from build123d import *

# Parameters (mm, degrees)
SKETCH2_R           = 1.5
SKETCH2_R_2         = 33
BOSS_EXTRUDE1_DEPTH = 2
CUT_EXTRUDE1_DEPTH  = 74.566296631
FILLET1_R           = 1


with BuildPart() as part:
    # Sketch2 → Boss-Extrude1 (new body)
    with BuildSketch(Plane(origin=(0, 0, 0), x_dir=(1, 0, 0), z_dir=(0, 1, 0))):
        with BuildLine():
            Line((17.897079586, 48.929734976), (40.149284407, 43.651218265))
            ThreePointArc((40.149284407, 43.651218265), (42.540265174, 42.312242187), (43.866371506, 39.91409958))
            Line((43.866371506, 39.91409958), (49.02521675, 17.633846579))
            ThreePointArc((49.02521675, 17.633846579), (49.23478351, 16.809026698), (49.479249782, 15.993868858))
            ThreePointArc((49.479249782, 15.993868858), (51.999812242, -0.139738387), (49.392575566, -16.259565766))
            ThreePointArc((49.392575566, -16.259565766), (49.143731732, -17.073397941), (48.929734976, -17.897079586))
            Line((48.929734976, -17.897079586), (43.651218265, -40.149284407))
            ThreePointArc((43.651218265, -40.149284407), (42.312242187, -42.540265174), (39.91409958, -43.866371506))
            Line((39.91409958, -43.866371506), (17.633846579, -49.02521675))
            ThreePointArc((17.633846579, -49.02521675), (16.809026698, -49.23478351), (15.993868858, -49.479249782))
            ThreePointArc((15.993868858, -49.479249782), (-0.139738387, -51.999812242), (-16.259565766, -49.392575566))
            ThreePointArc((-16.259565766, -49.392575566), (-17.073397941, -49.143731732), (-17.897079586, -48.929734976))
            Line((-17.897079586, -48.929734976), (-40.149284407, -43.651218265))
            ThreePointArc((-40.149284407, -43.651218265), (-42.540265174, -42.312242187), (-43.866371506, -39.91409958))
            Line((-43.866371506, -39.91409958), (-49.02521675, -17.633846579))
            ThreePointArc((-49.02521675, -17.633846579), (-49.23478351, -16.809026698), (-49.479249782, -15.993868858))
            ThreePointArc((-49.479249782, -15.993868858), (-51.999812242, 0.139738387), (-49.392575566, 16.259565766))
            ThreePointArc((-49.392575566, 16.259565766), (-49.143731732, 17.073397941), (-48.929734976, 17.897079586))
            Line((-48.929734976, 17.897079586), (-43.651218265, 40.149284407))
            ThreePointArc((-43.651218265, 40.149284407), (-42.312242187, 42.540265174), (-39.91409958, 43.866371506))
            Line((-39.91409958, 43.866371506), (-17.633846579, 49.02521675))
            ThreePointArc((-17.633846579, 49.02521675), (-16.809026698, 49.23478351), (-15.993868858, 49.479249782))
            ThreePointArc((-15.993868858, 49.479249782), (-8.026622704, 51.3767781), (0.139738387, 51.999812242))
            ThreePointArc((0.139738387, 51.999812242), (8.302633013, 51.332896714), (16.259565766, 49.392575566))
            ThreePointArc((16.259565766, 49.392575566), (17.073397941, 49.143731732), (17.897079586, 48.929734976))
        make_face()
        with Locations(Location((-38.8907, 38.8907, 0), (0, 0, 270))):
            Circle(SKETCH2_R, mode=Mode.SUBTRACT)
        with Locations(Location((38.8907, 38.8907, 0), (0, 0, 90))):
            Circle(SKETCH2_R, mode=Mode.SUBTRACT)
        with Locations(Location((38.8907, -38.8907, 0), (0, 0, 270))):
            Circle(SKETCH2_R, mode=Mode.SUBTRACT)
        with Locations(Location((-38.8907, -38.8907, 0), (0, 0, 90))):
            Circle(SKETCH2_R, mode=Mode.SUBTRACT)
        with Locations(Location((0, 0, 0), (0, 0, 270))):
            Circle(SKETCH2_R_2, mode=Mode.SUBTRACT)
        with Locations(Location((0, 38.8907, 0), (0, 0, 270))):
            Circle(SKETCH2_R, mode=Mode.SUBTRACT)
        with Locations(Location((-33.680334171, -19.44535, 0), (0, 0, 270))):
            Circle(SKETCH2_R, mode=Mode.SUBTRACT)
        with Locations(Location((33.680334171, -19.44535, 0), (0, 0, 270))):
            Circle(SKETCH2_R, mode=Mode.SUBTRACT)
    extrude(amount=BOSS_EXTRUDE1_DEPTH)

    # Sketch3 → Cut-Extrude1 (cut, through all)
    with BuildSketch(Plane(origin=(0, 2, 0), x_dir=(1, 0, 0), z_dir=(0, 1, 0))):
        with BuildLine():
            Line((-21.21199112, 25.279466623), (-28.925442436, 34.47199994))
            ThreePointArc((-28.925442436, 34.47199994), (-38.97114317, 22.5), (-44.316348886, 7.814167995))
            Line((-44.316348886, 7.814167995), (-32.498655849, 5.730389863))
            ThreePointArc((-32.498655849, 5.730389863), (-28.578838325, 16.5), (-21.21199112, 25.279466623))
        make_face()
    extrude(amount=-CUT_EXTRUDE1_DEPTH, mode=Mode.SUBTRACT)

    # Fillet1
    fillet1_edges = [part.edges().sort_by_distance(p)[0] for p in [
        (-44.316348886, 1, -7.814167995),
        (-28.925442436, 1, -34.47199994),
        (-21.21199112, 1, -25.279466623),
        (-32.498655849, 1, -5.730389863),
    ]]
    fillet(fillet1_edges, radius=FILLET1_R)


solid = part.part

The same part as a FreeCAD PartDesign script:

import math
import FreeCAD as App
import Part
import Sketcher

V = App.Vector
Q = App.Units.Quantity


def edges_at(feature, points):
    """Names of the edges that pass closest to the given points."""
    edges = feature.Shape.Edges
    near = lambda p: min(range(len(edges)), key=lambda i: edges[i].distToShape(Part.Vertex(*p))[0])
    return sorted({f"Edge{near(p) + 1}" for p in points})

doc = App.newDocument("Part")
body = doc.addObject("PartDesign::Body", "Body")

# Sketch on XZ plane
sketch1 = body.newObject("Sketcher::SketchObject", "Sketch")
sketch1.AttachmentSupport = (doc.getObject("XZ_Plane"), [""])
sketch1.MapMode = "FlatFace"
sketch1.addGeometry(Part.LineSegment(V(40.149284, -43.651218, 0), V(17.89708, -48.929735, 0)), False)
sketch1.addGeometry(Part.ArcOfCircle(Part.Circle(V(22.513245, -68.38972, 0), V(0, 0, 1), 20), math.radians(103.344662), math.radians(108.221053)), False)
sketch1.addGeometry(Part.ArcOfCircle(Part.Circle(V(0, 0, 0), V(0, 0, 1), 52), math.radians(-89.84603), math.radians(-71.778947)), False)
sketch1.addGeometry(Part.ArcOfCircle(Part.Circle(V(0, 0, 0), V(0, 0, 1), 52), math.radians(-107.913113), math.radians(-89.84603)), False)
sketch1.addGeometry(Part.ArcOfCircle(Part.Circle(V(-22.145357, -68.50973, 0), V(0, 0, 1), 19.999999), math.radians(72.086887), math.radians(76.963277)), False)
sketch1.addGeometry(Part.LineSegment(V(-17.633847, -49.025217, 0), V(-39.9141, -43.866372, 0)), False)
sketch1.addGeometry(Part.ArcOfCircle(Part.Circle(V(-38.786222, -38.995243, 0), V(0, 0, 1), 5), math.radians(-166.655338), math.radians(-103.036723)), False)
sketch1.addGeometry(Part.LineSegment(V(-43.651218, -40.149284, 0), V(-48.929735, -17.89708, 0)), False)
sketch1.addGeometry(Part.ArcOfCircle(Part.Circle(V(-68.38972, -22.513245, 0), V(0, 0, 1), 20), math.radians(13.344662), math.radians(18.221053)), False)
sketch1.addGeometry(Part.ArcOfCircle(Part.Circle(V(0, 0, 0), V(0, 0, 1), 52), math.radians(162.086887), math.radians(198.221053)), False)
sketch1.addGeometry(Part.ArcOfCircle(Part.Circle(V(-68.50973, 22.145357, 0), V(0, 0, 1), 19.999999), math.radians(-17.913113), math.radians(-13.036723)), False)
sketch1.addGeometry(Part.LineSegment(V(-49.025217, 17.633847, 0), V(-43.866372, 39.9141, 0)), False)
sketch1.addGeometry(Part.ArcOfCircle(Part.Circle(V(-38.995243, 38.786222, 0), V(0, 0, 1), 5), math.radians(103.344662), math.radians(166.963277)), False)
sketch1.addGeometry(Part.LineSegment(V(-40.149284, 43.651218, 0), V(-17.89708, 48.929735, 0)), False)
sketch1.addGeometry(Part.ArcOfCircle(Part.Circle(V(-22.513245, 68.38972, 0), V(0, 0, 1), 20), math.radians(-76.655338), math.radians(-71.778947)), False)
sketch1.addGeometry(Part.ArcOfCircle(Part.Circle(V(0, 0, 0), V(0, 0, 1), 52), math.radians(72.086887), math.radians(108.221053)), False)
sketch1.addGeometry(Part.ArcOfCircle(Part.Circle(V(22.145357, 68.50973, 0), V(0, 0, 1), 19.999999), math.radians(-107.913113), math.radians(-103.036723)), False)
sketch1.addGeometry(Part.LineSegment(V(17.633847, 49.025217, 0), V(39.9141, 43.866372, 0)), False)
sketch1.addGeometry(Part.ArcOfCircle(Part.Circle(V(38.786222, 38.995243, 0), V(0, 0, 1), 5), math.radians(13.344662), math.radians(76.963277)), False)
sketch1.addGeometry(Part.LineSegment(V(43.651218, 40.149284, 0), V(48.929735, 17.89708, 0)), False)
sketch1.addGeometry(Part.ArcOfCircle(Part.Circle(V(68.38972, 22.513245, 0), V(0, 0, 1), 20), math.radians(-166.655338), math.radians(-161.778947)), False)
sketch1.addGeometry(Part.ArcOfCircle(Part.Circle(V(0, 0, 0), V(0, 0, 1), 52), math.radians(-17.913113), math.radians(18.221053)), False)
sketch1.addGeometry(Part.ArcOfCircle(Part.Circle(V(68.50973, -22.145357, 0), V(0, 0, 1), 19.999999), math.radians(162.086887), math.radians(166.963277)), False)
sketch1.addGeometry(Part.LineSegment(V(49.025217, -17.633847, 0), V(43.866372, -39.9141, 0)), False)
sketch1.addGeometry(Part.ArcOfCircle(Part.Circle(V(38.995243, -38.786222, 0), V(0, 0, 1), 5), math.radians(-76.655338), math.radians(-13.036723)), False)
sketch1.addGeometry(Part.Circle(V(38.8907, 38.8907, 0), V(0, 0, 1), 1.5), False)
sketch1.addGeometry(Part.Circle(V(33.680334, 19.44535, 0), V(0, 0, 1), 1.5), False)
sketch1.addGeometry(Part.Circle(V(-38.8907, 38.8907, 0), V(0, 0, 1), 1.5), False)
sketch1.addGeometry(Part.Circle(V(-33.680334, 19.44535, 0), V(0, 0, 1), 1.5), False)
sketch1.addGeometry(Part.Circle(V(38.8907, -38.8907, 0), V(0, 0, 1), 1.5), False)
sketch1.addGeometry(Part.Circle(V(0, 0, 0), V(0, 0, 1), 33), False)
sketch1.addGeometry(Part.Circle(V(0, -38.8907, 0), V(0, 0, 1), 1.5), False)
sketch1.addGeometry(Part.Circle(V(-38.8907, -38.8907, 0), V(0, 0, 1), 1.5), False)
sketch1.addConstraint(Sketcher.Constraint("Tangent", 0, 2, 1, 1))
sketch1.addConstraint(Sketcher.Constraint("Tangent", 1, 2, 2, 2))
sketch1.addConstraint(Sketcher.Constraint("Tangent", 2, 1, 3, 2))
sketch1.addConstraint(Sketcher.Constraint("Tangent", 3, 1, 4, 1))
sketch1.addConstraint(Sketcher.Constraint("Tangent", 4, 2, 5, 1))
sketch1.addConstraint(Sketcher.Constraint("Tangent", 5, 2, 6, 2))
sketch1.addConstraint(Sketcher.Constraint("Tangent", 6, 1, 7, 1))
sketch1.addConstraint(Sketcher.Constraint("Tangent", 7, 2, 8, 1))
sketch1.addConstraint(Sketcher.Constraint("Tangent", 8, 2, 9, 2))
sketch1.addConstraint(Sketcher.Constraint("Tangent", 9, 1, 10, 1))
sketch1.addConstraint(Sketcher.Constraint("Tangent", 10, 2, 11, 1))
sketch1.addConstraint(Sketcher.Constraint("Tangent", 11, 2, 12, 2))
sketch1.addConstraint(Sketcher.Constraint("Tangent", 12, 1, 13, 1))
sketch1.addConstraint(Sketcher.Constraint("Tangent", 13, 2, 14, 1))
sketch1.addConstraint(Sketcher.Constraint("Tangent", 14, 2, 15, 2))
sketch1.addConstraint(Sketcher.Constraint("Tangent", 15, 1, 16, 1))
sketch1.addConstraint(Sketcher.Constraint("Tangent", 16, 2, 17, 1))
sketch1.addConstraint(Sketcher.Constraint("Tangent", 17, 2, 18, 2))
sketch1.addConstraint(Sketcher.Constraint("Tangent", 18, 1, 19, 1))
sketch1.addConstraint(Sketcher.Constraint("Tangent", 19, 2, 20, 1))
sketch1.addConstraint(Sketcher.Constraint("Tangent", 20, 2, 21, 2))
sketch1.addConstraint(Sketcher.Constraint("Tangent", 21, 1, 22, 1))
sketch1.addConstraint(Sketcher.Constraint("Tangent", 22, 2, 23, 1))
sketch1.addConstraint(Sketcher.Constraint("Tangent", 23, 2, 24, 2))
sketch1.addConstraint(Sketcher.Constraint("Tangent", 24, 1, 0, 1))
sketch1.addConstraint(Sketcher.Constraint("Coincident", 2, 3, -1, 1))
sketch1.addConstraint(Sketcher.Constraint("Coincident", 9, 3, -1, 1))
sketch1.addConstraint(Sketcher.Constraint("Coincident", 15, 3, -1, 1))
sketch1.addConstraint(Sketcher.Constraint("Coincident", 21, 3, -1, 1))
sketch1.addConstraint(Sketcher.Constraint("Coincident", 30, 3, -1, 1))
sketch1.addConstraint(Sketcher.Constraint("Equal", 2, 3))
sketch1.addConstraint(Sketcher.Constraint("Equal", 1, 4))
sketch1.addConstraint(Sketcher.Constraint("Equal", 4, 8))
sketch1.addConstraint(Sketcher.Constraint("Equal", 3, 9))
sketch1.addConstraint(Sketcher.Constraint("Equal", 8, 10))
sketch1.addConstraint(Sketcher.Constraint("Equal", 6, 12))
sketch1.addConstraint(Sketcher.Constraint("Equal", 10, 14))
sketch1.addConstraint(Sketcher.Constraint("Equal", 9, 15))
sketch1.addConstraint(Sketcher.Constraint("Equal", 14, 16))
sketch1.addConstraint(Sketcher.Constraint("Equal", 12, 18))
sketch1.addConstraint(Sketcher.Constraint("Equal", 16, 20))
sketch1.addConstraint(Sketcher.Constraint("Equal", 15, 21))
sketch1.addConstraint(Sketcher.Constraint("Equal", 20, 22))
sketch1.addConstraint(Sketcher.Constraint("Equal", 18, 24))
sketch1.addConstraint(Sketcher.Constraint("Equal", 25, 26))
sketch1.addConstraint(Sketcher.Constraint("Equal", 26, 27))
sketch1.addConstraint(Sketcher.Constraint("Equal", 27, 28))
sketch1.addConstraint(Sketcher.Constraint("Equal", 28, 29))
sketch1.addConstraint(Sketcher.Constraint("Equal", 29, 31))
sketch1.addConstraint(Sketcher.Constraint("Equal", 31, 32))
sketch1.addConstraint(Sketcher.Constraint("Symmetric", 6, 3, 18, 3, -1, 1))
sketch1.addConstraint(Sketcher.Constraint("Symmetric", 12, 3, 24, 3, -1, 1))
sketch1.addConstraint(Sketcher.Constraint("Symmetric", 27, 3, 29, 3, -1, 1))
sketch1.addConstraint(Sketcher.Constraint("Symmetric", 25, 3, 32, 3, -1, 1))
sketch1.addConstraint(Sketcher.Constraint("Symmetric", 25, 3, 27, 3, -2))
sketch1.addConstraint(Sketcher.Constraint("Symmetric", 26, 3, 28, 3, -2))
sketch1.addConstraint(Sketcher.Constraint("PointOnObject", 31, 3, -2))
sketch1.addConstraint(Sketcher.Constraint("Perpendicular", 0, 7))
sketch1.addConstraint(Sketcher.Constraint("Perpendicular", 5, 11))
sketch1.addConstraint(Sketcher.Constraint("Perpendicular", 7, 13))
sketch1.addConstraint(Sketcher.Constraint("Perpendicular", 11, 17))
sketch1.addConstraint(Sketcher.Constraint("Perpendicular", 13, 19))
sketch1.addConstraint(Sketcher.Constraint("Perpendicular", 17, 23))
sketch1.addConstraint(Sketcher.Constraint("Horizontal", 29, 3, 31, 3))
sketch1.addConstraint(Sketcher.Constraint("Equal", 0, 5))
sketch1.addConstraint(Sketcher.Constraint("Equal", 5, 7))
sketch1.addConstraint(Sketcher.Constraint("Equal", 7, 11))
sketch1.addConstraint(Sketcher.Constraint("Diameter", 25, Q("3 mm")))
sketch1.addConstraint(Sketcher.Constraint("Diameter", 30, Q("66 mm")))
sketch1.addConstraint(Sketcher.Constraint("Radius", 1, Q("20 mm")))
sketch1.addConstraint(Sketcher.Constraint("Radius", 2, Q("52 mm")))
sketch1.addConstraint(Sketcher.Constraint("Radius", 6, Q("5 mm")))
sketch1.addConstraint(Sketcher.Constraint("DistanceY", 6, 3, 8, 3, Q("16.481998 mm")))
sketch1.addConstraint(Sketcher.Constraint("DistanceX", -1, 1, 25, 3, Q("38.8907 mm")))
sketch1.addConstraint(Sketcher.Constraint("DistanceY", -1, 1, 25, 3, Q("38.8907 mm")))
sketch1.addConstraint(Sketcher.Constraint("DistanceX", 5, 2, -1, 1, Q("39.9141 mm")))
sketch1.addConstraint(Sketcher.Constraint("DistanceX", 4, 3, 1, 3, Q("44.658602 mm")))
sketch1.addConstraint(Sketcher.Constraint("DistanceX", 26, 3, 19, 2, Q("15.249401 mm")))
sketch1.addConstraint(Sketcher.Constraint("DistanceY", -1, 1, 26, 3, Q("19.44535 mm")))
sketch1.addConstraint(Sketcher.Constraint("DistanceX", -1, 1, 2, 1, Q("0.139738 mm")))
pad1 = body.newObject("PartDesign::Pad", "Pad")
pad1.Profile = sketch1
pad1.Length = 2
pad1.Reversed = True

# Sketch on XZ plane
sketch2 = body.newObject("Sketcher::SketchObject", "Sketch001")
sketch2.AttachmentSupport = (doc.getObject("XZ_Plane"), [""])
sketch2.MapMode = "FlatFace"
sketch2.AttachmentOffset = App.Placement(V(0, 0, -2), App.Rotation())
sketch2.addGeometry(Part.LineSegment(V(-21.211991, -25.279467, 0), V(-28.925442, -34.472, 0)), False)
sketch2.addGeometry(Part.ArcOfCircle(Part.Circle(V(0, 0, 0), V(0, 0, 1), 45), math.radians(-170), math.radians(-130)), False)
sketch2.addGeometry(Part.LineSegment(V(-44.316349, -7.814168, 0), V(-32.498656, -5.73039, 0)), False)
sketch2.addGeometry(Part.ArcOfCircle(Part.Circle(V(0, 0, 0), V(0, 0, 1), 33), math.radians(-170), math.radians(-130)), False)
sketch2.addConstraint(Sketcher.Constraint("Coincident", 0, 2, 1, 2))
sketch2.addConstraint(Sketcher.Constraint("Coincident", 1, 1, 2, 1))
sketch2.addConstraint(Sketcher.Constraint("Coincident", 2, 2, 3, 1))
sketch2.addConstraint(Sketcher.Constraint("Coincident", 3, 2, 0, 1))
sketch2.addConstraint(Sketcher.Constraint("Coincident", 1, 3, -1, 1))
sketch2.addConstraint(Sketcher.Constraint("Coincident", 3, 3, -1, 1))
sketch2.addConstraint(Sketcher.Constraint("Radius", 1, Q("45 mm")))
sketch2.addConstraint(Sketcher.Constraint("Radius", 3, Q("33 mm")))
sketch2.addConstraint(Sketcher.Constraint("Angle", 0, Q("-130 deg")))
sketch2.addConstraint(Sketcher.Constraint("Angle", 2, Q("10 deg")))
sketch2.addConstraint(Sketcher.Constraint("DistanceY", 0, 2, -1, 1, Q("34.472 mm")))
sketch2.addConstraint(Sketcher.Constraint("DistanceY", 3, 2, 1, 1, Q("17.465299 mm")))
pocket1 = body.newObject("PartDesign::Pocket", "Pocket")
pocket1.Profile = sketch2
pocket1.Type = "ThroughAll"
pocket1.Reversed = True
doc.recompute()

fillet = body.newObject("PartDesign::Fillet", "Fillet")
fillet.Base = (pocket1, edges_at(pocket1, [
    (-44.316, 1, -7.814),
    (-28.925, 1, -34.472),
    (-21.212, 1, -25.279),
    (-32.499, 1, -5.73),
]))
fillet.Radius = 1

doc.recompute()
